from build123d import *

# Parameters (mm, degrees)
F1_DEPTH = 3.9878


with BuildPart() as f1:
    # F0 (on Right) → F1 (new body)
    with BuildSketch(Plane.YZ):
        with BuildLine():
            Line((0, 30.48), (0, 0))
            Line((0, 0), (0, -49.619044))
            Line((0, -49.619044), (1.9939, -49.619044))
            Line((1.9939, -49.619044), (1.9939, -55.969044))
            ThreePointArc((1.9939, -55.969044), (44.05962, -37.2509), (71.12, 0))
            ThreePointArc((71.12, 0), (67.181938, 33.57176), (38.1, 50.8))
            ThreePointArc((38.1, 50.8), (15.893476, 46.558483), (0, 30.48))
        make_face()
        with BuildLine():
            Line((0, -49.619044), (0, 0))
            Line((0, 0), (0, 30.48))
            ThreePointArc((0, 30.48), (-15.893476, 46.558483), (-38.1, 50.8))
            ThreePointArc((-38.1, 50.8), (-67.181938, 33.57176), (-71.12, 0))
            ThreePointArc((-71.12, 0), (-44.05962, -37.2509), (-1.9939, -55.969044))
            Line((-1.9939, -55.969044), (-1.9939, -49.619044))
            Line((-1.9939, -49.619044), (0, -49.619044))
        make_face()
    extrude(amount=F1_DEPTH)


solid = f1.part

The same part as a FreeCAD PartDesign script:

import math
import FreeCAD as App
import Part
import Sketcher
Q = App.Units.Quantity

doc = App.newDocument("Part")
body = doc.addObject("PartDesign::Body", "Body")

# Sketch on YZ plane
sketch1 = body.newObject("Sketcher::SketchObject", "Sketch")
sketch1.AttachmentSupport = (doc.getObject("YZ_Plane"), [""])
sketch1.MapMode = "FlatFace"
sketch1.addGeometry(Part.LineSegment(App.Vector(1.9939, -49.619044, 0), App.Vector(1.9939, -55.969044, 0)), False)
sketch1.addGeometry(Part.ArcOfCircle(Part.Circle(App.Vector(-11.882033, 31.84137, 0), App.Vector(0, 0, 1), 88.900002), math.radians(-81.020287), math.radians(-20.987891)), False)
sketch1.addGeometry(Part.ArcOfCircle(Part.Circle(App.Vector(35.237236, 12.807704, 0), App.Vector(0, 0, 1), 38.1), math.radians(-19.643105), math.radians(85.69084)), False)
sketch1.addGeometry(Part.ArcOfCircle(Part.Circle(App.Vector(33.822888, 12.940836, 0), App.Vector(0, 0, 1), 38.1), math.radians(83.554379), math.radians(152.590595)), False)
sketch1.addGeometry(Part.ArcOfCircle(Part.Circle(App.Vector(-33.822888, 12.940836, 0), App.Vector(0, 0, 1), 38.1), math.radians(27.409405), math.radians(96.445621)), False)
sketch1.addGeometry(Part.ArcOfCircle(Part.Circle(App.Vector(-35.237236, 12.807704, 0), App.Vector(0, 0, 1), 38.1), math.radians(94.30916), math.radians(199.643105)), False)
sketch1.addGeometry(Part.ArcOfCircle(Part.Circle(App.Vector(11.882033, 31.84137, 0), App.Vector(0, 0, 1), 88.900002), math.radians(-159.012109), math.radians(-98.979713)), False)
sketch1.addGeometry(Part.LineSegment(App.Vector(-1.9939, -55.969044, 0), App.Vector(-1.9939, -49.619044, 0)), False)
sketch1.addGeometry(Part.LineSegment(App.Vector(-1.9939, -49.619044, 0), App.Vector(1.9939, -49.619044, 0)), False)
sketch1.addConstraint(Sketcher.Constraint("Coincident", 0, 2, 1, 1))
sketch1.addConstraint(Sketcher.Constraint("Coincident", 1, 2, 2, 1))
sketch1.addConstraint(Sketcher.Constraint("Coincident", 2, 2, 3, 1))
sketch1.addConstraint(Sketcher.Constraint("Coincident", 3, 2, 4, 1))
sketch1.addConstraint(Sketcher.Constraint("Coincident", 4, 2, 5, 1))
sketch1.addConstraint(Sketcher.Constraint("Coincident", 5, 2, 6, 1))
sketch1.addConstraint(Sketcher.Constraint("Coincident", 6, 2, 7, 1))
sketch1.addConstraint(Sketcher.Constraint("Coincident", 7, 2, 8, 1))
sketch1.addConstraint(Sketcher.Constraint("Coincident", 8, 2, 0, 1))
sketch1.addConstraint(Sketcher.Constraint("Vertical", 0))
sketch1.addConstraint(Sketcher.Constraint("Vertical", 7))
sketch1.addConstraint(Sketcher.Constraint("Horizontal", 8))
sketch1.addConstraint(Sketcher.Constraint("Equal", 2, 3))
sketch1.addConstraint(Sketcher.Constraint("Equal", 3, 4))
sketch1.addConstraint(Sketcher.Constraint("Equal", 4, 5))
sketch1.addConstraint(Sketcher.Constraint("Equal", 1, 6))
sketch1.addConstraint(Sketcher.Constraint("Symmetric", 1, 2, 5, 2, -1, 1))
sketch1.addConstraint(Sketcher.Constraint("Symmetric", 3, 3, 4, 3, -2))
sketch1.addConstraint(Sketcher.Constraint("Symmetric", 2, 3, 5, 3, -2))
sketch1.addConstraint(Sketcher.Constraint("Symmetric", 0, 2, 6, 2, -2))
sketch1.addConstraint(Sketcher.Constraint("Radius", 1, Q("3.5000001 in")))
sketch1.addConstraint(Sketcher.Constraint("Radius", 2, Q("1.5 in")))
sketch1.addConstraint(Sketcher.Constraint("DistanceY", -1, 1, 2, 2, Q("2 in")))
sketch1.addConstraint(Sketcher.Constraint("DistanceY", 0, 2, 0, 1, Q("0.25 in")))
sketch1.addConstraint(Sketcher.Constraint("DistanceX", -1, 1, 1, 2, Q("2.8 in")))
sketch1.addConstraint(Sketcher.Constraint("DistanceX", -1, 1, 2, 2, Q("1.5 in")))
sketch1.addConstraint(Sketcher.Constraint("DistanceY", -1, 1, 3, 2, Q("1.2 in")))
sketch1.addConstraint(Sketcher.Constraint("DistanceX", 8, 1, 8, 2, Q("0.157 in")))
sketch1.addConstraint(Sketcher.Constraint("DistanceY", -1, 1, 1, 3, 31.84137))
pad1 = body.newObject("PartDesign::Pad", "Pad")
pad1.Profile = sketch1
pad1.Length = Q("0.157 in")

doc.recompute()
